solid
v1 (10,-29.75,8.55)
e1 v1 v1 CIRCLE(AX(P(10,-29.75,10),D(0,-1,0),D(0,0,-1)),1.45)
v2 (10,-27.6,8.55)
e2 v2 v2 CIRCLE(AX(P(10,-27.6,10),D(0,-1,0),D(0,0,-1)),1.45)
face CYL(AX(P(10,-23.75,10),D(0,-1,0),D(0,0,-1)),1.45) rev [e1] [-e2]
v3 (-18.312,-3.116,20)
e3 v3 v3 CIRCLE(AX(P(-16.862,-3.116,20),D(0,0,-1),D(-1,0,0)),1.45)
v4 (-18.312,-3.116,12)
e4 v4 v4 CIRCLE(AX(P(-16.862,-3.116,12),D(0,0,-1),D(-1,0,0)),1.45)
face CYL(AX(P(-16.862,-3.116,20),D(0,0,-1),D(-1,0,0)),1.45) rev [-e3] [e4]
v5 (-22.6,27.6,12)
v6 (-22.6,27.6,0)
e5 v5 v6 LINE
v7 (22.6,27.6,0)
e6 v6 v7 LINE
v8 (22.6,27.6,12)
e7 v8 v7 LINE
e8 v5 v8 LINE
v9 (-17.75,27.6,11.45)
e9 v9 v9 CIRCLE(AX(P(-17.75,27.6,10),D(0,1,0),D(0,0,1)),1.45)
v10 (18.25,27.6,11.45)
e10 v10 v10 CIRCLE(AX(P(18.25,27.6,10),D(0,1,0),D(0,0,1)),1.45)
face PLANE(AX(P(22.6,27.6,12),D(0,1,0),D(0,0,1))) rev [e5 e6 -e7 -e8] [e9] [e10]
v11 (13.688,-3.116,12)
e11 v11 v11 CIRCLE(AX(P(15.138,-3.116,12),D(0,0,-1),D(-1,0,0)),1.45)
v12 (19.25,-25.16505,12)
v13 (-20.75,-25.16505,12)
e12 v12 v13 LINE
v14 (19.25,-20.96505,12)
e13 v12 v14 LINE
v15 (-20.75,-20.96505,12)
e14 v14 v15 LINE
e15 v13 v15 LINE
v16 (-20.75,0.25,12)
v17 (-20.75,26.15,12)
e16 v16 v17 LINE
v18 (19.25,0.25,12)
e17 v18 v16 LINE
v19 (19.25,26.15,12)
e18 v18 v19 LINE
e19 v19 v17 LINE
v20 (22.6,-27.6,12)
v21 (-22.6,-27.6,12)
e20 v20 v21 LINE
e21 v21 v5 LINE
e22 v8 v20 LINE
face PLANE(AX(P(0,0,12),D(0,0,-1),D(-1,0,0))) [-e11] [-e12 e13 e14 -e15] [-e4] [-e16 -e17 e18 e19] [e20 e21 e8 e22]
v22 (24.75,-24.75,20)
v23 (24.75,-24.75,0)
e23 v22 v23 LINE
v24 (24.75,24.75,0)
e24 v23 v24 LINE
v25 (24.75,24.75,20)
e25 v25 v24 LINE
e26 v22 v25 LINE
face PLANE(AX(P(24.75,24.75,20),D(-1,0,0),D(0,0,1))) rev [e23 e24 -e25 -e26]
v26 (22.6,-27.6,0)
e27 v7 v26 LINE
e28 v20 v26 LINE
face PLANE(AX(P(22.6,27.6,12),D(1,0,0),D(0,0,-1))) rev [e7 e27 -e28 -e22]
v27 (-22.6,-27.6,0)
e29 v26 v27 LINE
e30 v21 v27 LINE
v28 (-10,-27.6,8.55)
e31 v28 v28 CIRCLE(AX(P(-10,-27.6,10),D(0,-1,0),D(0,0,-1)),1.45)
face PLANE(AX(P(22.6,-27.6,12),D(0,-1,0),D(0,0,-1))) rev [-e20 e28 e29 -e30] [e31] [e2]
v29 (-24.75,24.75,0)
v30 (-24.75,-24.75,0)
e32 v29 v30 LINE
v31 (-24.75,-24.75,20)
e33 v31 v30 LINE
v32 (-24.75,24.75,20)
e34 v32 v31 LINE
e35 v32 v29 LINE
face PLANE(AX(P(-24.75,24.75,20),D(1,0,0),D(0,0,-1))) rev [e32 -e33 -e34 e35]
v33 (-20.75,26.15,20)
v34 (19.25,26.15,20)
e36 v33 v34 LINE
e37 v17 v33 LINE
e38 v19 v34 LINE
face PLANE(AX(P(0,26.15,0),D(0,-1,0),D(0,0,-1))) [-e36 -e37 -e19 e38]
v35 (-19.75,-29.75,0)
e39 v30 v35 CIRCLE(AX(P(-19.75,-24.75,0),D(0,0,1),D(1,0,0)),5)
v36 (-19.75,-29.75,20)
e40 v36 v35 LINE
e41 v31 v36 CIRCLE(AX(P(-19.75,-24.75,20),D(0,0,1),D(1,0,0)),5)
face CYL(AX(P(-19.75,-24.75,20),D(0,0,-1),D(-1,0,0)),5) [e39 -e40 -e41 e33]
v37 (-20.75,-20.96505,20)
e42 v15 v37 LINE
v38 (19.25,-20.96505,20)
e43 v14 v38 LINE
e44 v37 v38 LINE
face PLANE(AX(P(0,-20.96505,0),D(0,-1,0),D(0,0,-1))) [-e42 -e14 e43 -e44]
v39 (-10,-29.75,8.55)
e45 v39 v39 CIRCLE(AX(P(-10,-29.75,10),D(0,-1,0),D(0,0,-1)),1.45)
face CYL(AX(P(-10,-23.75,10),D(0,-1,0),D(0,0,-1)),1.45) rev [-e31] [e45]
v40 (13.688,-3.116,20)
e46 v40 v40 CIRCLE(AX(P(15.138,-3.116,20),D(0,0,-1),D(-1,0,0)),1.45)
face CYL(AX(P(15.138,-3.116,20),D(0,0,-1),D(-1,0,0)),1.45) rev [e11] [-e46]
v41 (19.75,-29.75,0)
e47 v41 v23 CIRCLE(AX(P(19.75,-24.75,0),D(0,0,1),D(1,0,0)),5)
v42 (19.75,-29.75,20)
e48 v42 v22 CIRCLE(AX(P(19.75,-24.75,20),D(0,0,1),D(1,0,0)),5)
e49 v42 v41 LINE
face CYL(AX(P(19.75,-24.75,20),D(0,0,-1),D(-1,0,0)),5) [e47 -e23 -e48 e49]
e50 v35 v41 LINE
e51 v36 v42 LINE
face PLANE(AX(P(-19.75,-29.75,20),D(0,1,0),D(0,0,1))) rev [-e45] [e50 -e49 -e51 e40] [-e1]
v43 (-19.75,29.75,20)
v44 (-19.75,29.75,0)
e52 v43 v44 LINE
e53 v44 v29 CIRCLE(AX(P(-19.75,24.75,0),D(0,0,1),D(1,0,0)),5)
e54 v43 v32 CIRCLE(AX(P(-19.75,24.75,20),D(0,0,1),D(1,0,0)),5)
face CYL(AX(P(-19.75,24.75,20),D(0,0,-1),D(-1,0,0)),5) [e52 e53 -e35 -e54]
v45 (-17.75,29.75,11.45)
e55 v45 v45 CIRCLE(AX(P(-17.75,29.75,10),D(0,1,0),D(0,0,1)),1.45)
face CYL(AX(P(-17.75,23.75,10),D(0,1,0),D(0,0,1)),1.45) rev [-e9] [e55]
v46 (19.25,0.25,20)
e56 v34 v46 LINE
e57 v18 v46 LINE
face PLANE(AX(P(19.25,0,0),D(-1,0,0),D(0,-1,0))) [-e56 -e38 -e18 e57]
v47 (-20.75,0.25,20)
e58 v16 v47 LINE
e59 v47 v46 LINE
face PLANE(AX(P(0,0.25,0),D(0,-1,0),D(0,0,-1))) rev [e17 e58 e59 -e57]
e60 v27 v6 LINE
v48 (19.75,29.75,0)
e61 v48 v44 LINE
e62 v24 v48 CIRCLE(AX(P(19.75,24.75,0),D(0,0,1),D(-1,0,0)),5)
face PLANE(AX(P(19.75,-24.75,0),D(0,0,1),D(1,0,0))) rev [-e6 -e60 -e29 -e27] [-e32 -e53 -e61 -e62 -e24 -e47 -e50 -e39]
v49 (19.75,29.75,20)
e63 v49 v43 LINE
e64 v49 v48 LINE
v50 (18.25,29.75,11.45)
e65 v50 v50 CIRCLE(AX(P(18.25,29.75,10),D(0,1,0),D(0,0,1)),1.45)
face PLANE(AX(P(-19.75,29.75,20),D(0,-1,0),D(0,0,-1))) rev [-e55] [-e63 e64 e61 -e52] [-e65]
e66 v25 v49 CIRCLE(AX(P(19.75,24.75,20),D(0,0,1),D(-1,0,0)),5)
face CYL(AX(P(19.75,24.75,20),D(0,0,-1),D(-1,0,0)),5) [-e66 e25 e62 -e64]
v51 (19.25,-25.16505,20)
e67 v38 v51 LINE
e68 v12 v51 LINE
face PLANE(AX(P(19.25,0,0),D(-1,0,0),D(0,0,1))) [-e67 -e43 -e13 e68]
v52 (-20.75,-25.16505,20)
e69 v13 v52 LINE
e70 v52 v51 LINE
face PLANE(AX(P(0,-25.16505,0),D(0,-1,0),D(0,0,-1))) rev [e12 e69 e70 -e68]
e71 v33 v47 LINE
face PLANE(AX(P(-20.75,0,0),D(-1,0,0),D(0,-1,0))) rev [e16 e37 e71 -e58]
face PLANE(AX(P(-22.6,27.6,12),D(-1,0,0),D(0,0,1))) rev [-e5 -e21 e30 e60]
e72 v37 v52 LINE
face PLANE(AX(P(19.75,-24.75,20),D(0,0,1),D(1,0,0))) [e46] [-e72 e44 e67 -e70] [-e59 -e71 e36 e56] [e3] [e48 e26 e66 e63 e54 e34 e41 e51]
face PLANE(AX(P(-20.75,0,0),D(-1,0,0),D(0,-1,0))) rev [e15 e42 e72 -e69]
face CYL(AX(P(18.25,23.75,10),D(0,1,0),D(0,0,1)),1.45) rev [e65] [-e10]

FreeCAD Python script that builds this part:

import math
import FreeCAD as App
import Part
import Sketcher
from FreeCAD import Vector
Q = App.Units.Quantity


def add_polygon(sketch, points):
    """Adds a closed chain of lines whose ends are joined by coincident constraints."""
    first, n = sketch.GeometryCount, len(points)
    for a, b in zip(points, points[1:] + points[:1]):
        sketch.addGeometry(Part.LineSegment(App.Vector(*a, 0), App.Vector(*b, 0)), False)
    for i in range(n):
        sketch.addConstraint(Sketcher.Constraint("Coincident", first + i, 2, first + (i + 1) % n, 1))

doc = App.newDocument("Part")
body = doc.addObject("PartDesign::Body", "Body")

# Sketch on XY plane
sketch1 = doc.addObject("Sketcher::SketchObject", "Sketch")
body.addObject(sketch1)
sketch1.AttachmentSupport = (doc.XY_Plane, [""])
sketch1.MapMode = "FlatFace"
sketch1.addGeometry(Part.LineSegment(Vector(19.75, 29.75, 0), Vector(-19.75, 29.75, 0)), False)
sketch1.addGeometry(Part.ArcOfCircle(Part.Circle(Vector(-19.75, 24.75, 0), Vector(0, 0, 1), 5), math.radians(90), math.radians(180)), False)
sketch1.addGeometry(Part.LineSegment(Vector(-24.75, 24.75, 0), Vector(-24.75, -24.75, 0)), False)
sketch1.addGeometry(Part.ArcOfCircle(Part.Circle(Vector(-19.75, -24.75, 0), Vector(0, 0, 1), 5), math.radians(180), math.radians(270)), False)
sketch1.addGeometry(Part.LineSegment(Vector(-19.75, -29.75, 0), Vector(19.75, -29.75, 0)), False)
sketch1.addGeometry(Part.ArcOfCircle(Part.Circle(Vector(19.75, -24.75, 0), Vector(0, 0, 1), 5), math.radians(-90), math.radians(0)), False)
sketch1.addGeometry(Part.LineSegment(Vector(24.75, -24.75, 0), Vector(24.75, 24.75, 0)), False)
sketch1.addGeometry(Part.ArcOfCircle(Part.Circle(Vector(19.75, 24.75, 0), Vector(0, 0, 1), 5), math.radians(0), math.radians(90)), False)
sketch1.addConstraint(Sketcher.Constraint("Tangent", 0, 2, 1, 1))
sketch1.addConstraint(Sketcher.Constraint("Tangent", 1, 2, 2, 1))
sketch1.addConstraint(Sketcher.Constraint("Tangent", 2, 2, 3, 1))
sketch1.addConstraint(Sketcher.Constraint("Tangent", 3, 2, 4, 1))
sketch1.addConstraint(Sketcher.Constraint("Tangent", 4, 2, 5, 1))
sketch1.addConstraint(Sketcher.Constraint("Tangent", 5, 2, 6, 1))
sketch1.addConstraint(Sketcher.Constraint("Tangent", 6, 2, 7, 1))
sketch1.addConstraint(Sketcher.Constraint("Tangent", 7, 2, 0, 1))
sketch1.addConstraint(Sketcher.Constraint("Horizontal", 0))
sketch1.addConstraint(Sketcher.Constraint("Vertical", 2))
sketch1.addConstraint(Sketcher.Constraint("Horizontal", 4))
sketch1.addConstraint(Sketcher.Constraint("Vertical", 6))
sketch1.addConstraint(Sketcher.Constraint("Equal", 1, 3))
sketch1.addConstraint(Sketcher.Constraint("Equal", 3, 5))
sketch1.addConstraint(Sketcher.Constraint("Equal", 5, 7))
sketch1.addConstraint(Sketcher.Constraint("Symmetric", 1, 3, 5, 3, -1, 1))
sketch1.addConstraint(Sketcher.Constraint("Radius", 1, Q("5 mm")))
sketch1.addConstraint(Sketcher.Constraint("DistanceX", 0, 2, 0, 1, Q("39.5 mm")))
sketch1.addConstraint(Sketcher.Constraint("DistanceY", 2, 2, 2, 1, Q("49.5 mm")))
pad1 = doc.addObject("PartDesign::Pad", "Pad")
body.addObject(pad1)
pad1.Profile = sketch1
pad1.Length = 20

# Sketch on XY plane
sketch2 = doc.addObject("Sketcher::SketchObject", "Sketch001")
body.addObject(sketch2)
sketch2.AttachmentSupport = (doc.XY_Plane, [""])
sketch2.MapMode = "FlatFace"
add_polygon(sketch2, [(22.6, 27.6), (22.6, -27.6), (-22.6, -27.6), (-22.6, 27.6)])  # lines 0-3
sketch2.addConstraint(Sketcher.Constraint("Vertical", 0))
sketch2.addConstraint(Sketcher.Constraint("Horizontal", 1))
sketch2.addConstraint(Sketcher.Constraint("Vertical", 2))
sketch2.addConstraint(Sketcher.Constraint("Horizontal", 3))
sketch2.addConstraint(Sketcher.Constraint("Symmetric", 0, 2, 2, 2, -1, 1))
sketch2.addConstraint(Sketcher.Constraint("DistanceX", 1, 2, 1, 1, Q("45.2 mm")))
sketch2.addConstraint(Sketcher.Constraint("DistanceY", 0, 2, 0, 1, Q("55.2 mm")))
pocket1 = doc.addObject("PartDesign::Pocket", "Pocket")
body.addObject(pocket1)
pocket1.Profile = sketch2
pocket1.Length = 12
pocket1.Reversed = True

# Sketch on XY plane
sketch3 = doc.addObject("Sketcher::SketchObject", "Sketch002")
body.addObject(sketch3)
sketch3.AttachmentSupport = (doc.XY_Plane, [""])
sketch3.MapMode = "FlatFace"
sketch3.AttachmentOffset = App.Placement(Vector(0, 0, 20), App.Rotation())
add_polygon(sketch3, [(-20.75, 26.15), (-20.75, 0.25), (19.25, 0.25), (19.25, 26.15)])  # lines 0-3
add_polygon(sketch3, [(-20.75, -20.96505), (-20.75, -25.16505), (19.25, -25.16505), (19.25, -20.96505)])  # lines 4-7
sketch3.addConstraint(Sketcher.Constraint("Vertical", 0))
sketch3.addConstraint(Sketcher.Constraint("Horizontal", 1))
sketch3.addConstraint(Sketcher.Constraint("Vertical", 2))
sketch3.addConstraint(Sketcher.Constraint("Horizontal", 3))
sketch3.addConstraint(Sketcher.Constraint("Vertical", 4))
sketch3.addConstraint(Sketcher.Constraint("Horizontal", 5))
sketch3.addConstraint(Sketcher.Constraint("Vertical", 6))
sketch3.addConstraint(Sketcher.Constraint("Horizontal", 7))
sketch3.addConstraint(Sketcher.Constraint("Vertical", 3, 2, 4, 2))
sketch3.addConstraint(Sketcher.Constraint("Vertical", 2, 2, 5, 2))
sketch3.addConstraint(Sketcher.Constraint("DistanceX", 1, 1, 1, 2, Q("40 mm")))
sketch3.addConstraint(Sketcher.Constraint("DistanceY", 0, 2, 0, 1, Q("25.9 mm")))
sketch3.addConstraint(Sketcher.Constraint("DistanceY", 4, 2, 4, 1, Q("4.2 mm")))
sketch3.addConstraint(Sketcher.Constraint("DistanceX", 0, 2, -1, 1, Q("20.75 mm")))
sketch3.addConstraint(Sketcher.Constraint("DistanceY", -1, 1, 0, 2, Q("0.25 mm")))
sketch3.addConstraint(Sketcher.Constraint("DistanceY", 4, 2, -1, 1, Q("25.16505 mm")))
pocket2 = doc.addObject("PartDesign::Pocket", "Pocket001")
body.addObject(pocket2)
pocket2.Profile = sketch3
pocket2.Type = "ThroughAll"

# Sketch on XY plane
sketch4 = doc.addObject("Sketcher::SketchObject", "Sketch003")
body.addObject(sketch4)
sketch4.AttachmentSupport = (doc.XY_Plane, [""])
sketch4.MapMode = "FlatFace"
sketch4.AttachmentOffset = App.Placement(Vector(0, 0, 12), App.Rotation())
sketch4.addGeometry(Part.Circle(Vector(-16.862, -3.116, 0), Vector(0, 0, 1), 1.45), False)
sketch4.addGeometry(Part.Circle(Vector(15.138, -3.116, 0), Vector(0, 0, 1), 1.45), False)
sketch4.addConstraint(Sketcher.Constraint("Equal", 0, 1))
sketch4.addConstraint(Sketcher.Constraint("Horizontal", 0, 3, 1, 3))
sketch4.addConstraint(Sketcher.Constraint("Diameter", 0, Q("2.9 mm")))
sketch4.addConstraint(Sketcher.Constraint("DistanceX", 0, 3, 1, 3, Q("32 mm")))
sketch4.addConstraint(Sketcher.Constraint("DistanceX", 0, 3, -1, 1, Q("16.862 mm")))
sketch4.addConstraint(Sketcher.Constraint("DistanceY", 0, 3, -1, 1, Q("3.116 mm")))
pocket3 = doc.addObject("PartDesign::Pocket", "Pocket002")
body.addObject(pocket3)
pocket3.Profile = sketch4
pocket3.Type = "ThroughAll"
pocket3.Reversed = True

# Sketch on XZ plane
sketch5 = doc.addObject("Sketcher::SketchObject", "Sketch004")
body.addObject(sketch5)
sketch5.AttachmentSupport = (doc.XZ_Plane, [""])
sketch5.MapMode = "FlatFace"
sketch5.AttachmentOffset = App.Placement(Vector(0, 0, -29.75), App.Rotation())
sketch5.addGeometry(Part.Circle(Vector(-17.75, 10, 0), Vector(0, 0, 1), 1.45), False)
sketch5.addGeometry(Part.Circle(Vector(18.25, 10, 0), Vector(0, 0, 1), 1.45), False)
sketch5.addConstraint(Sketcher.Constraint("Equal", 0, 1))
sketch5.addConstraint(Sketcher.Constraint("Horizontal", 0, 3, 1, 3))
sketch5.addConstraint(Sketcher.Constraint("Diameter", 0, Q("2.9 mm")))
sketch5.addConstraint(Sketcher.Constraint("DistanceY", -1, 1, 0, 3, Q("10 mm")))
sketch5.addConstraint(Sketcher.Constraint("DistanceX", 0, 3, 1, 3, Q("36 mm")))
sketch5.addConstraint(Sketcher.Constraint("DistanceX", 0, 3, -1, 1, Q("17.75 mm")))
pocket4 = doc.addObject("PartDesign::Pocket", "Pocket003")
body.addObject(pocket4)
pocket4.Profile = sketch5
pocket4.Length = 6
pocket4.Reversed = True

# Sketch on XZ plane
sketch6 = doc.addObject("Sketcher::SketchObject", "Sketch005")
body.addObject(sketch6)
sketch6.AttachmentSupport = (doc.XZ_Plane, [""])
sketch6.MapMode = "FlatFace"
sketch6.AttachmentOffset = App.Placement(Vector(0, 0, 29.75), App.Rotation())
sketch6.addGeometry(Part.Circle(Vector(-10, 10, 0), Vector(0, 0, 1), 1.45), False)
sketch6.addGeometry(Part.Circle(Vector(10, 10, 0), Vector(0, 0, 1), 1.45), False)
sketch6.addConstraint(Sketcher.Constraint("Equal", 0, 1))
sketch6.addConstraint(Sketcher.Constraint("Symmetric", 0, 3, 1, 3, -2))
sketch6.addConstraint(Sketcher.Constraint("Diameter", 0, Q("2.9 mm")))
sketch6.addConstraint(Sketcher.Constraint("DistanceX", 0, 3, -1, 1, Q("10 mm")))
sketch6.addConstraint(Sketcher.Constraint("DistanceY", -1, 1, 0, 3, Q("10 mm")))
pocket5 = doc.addObject("PartDesign::Pocket", "Pocket004")
body.addObject(pocket5)
pocket5.Profile = sketch6
pocket5.Length = 6

doc.recompute()
